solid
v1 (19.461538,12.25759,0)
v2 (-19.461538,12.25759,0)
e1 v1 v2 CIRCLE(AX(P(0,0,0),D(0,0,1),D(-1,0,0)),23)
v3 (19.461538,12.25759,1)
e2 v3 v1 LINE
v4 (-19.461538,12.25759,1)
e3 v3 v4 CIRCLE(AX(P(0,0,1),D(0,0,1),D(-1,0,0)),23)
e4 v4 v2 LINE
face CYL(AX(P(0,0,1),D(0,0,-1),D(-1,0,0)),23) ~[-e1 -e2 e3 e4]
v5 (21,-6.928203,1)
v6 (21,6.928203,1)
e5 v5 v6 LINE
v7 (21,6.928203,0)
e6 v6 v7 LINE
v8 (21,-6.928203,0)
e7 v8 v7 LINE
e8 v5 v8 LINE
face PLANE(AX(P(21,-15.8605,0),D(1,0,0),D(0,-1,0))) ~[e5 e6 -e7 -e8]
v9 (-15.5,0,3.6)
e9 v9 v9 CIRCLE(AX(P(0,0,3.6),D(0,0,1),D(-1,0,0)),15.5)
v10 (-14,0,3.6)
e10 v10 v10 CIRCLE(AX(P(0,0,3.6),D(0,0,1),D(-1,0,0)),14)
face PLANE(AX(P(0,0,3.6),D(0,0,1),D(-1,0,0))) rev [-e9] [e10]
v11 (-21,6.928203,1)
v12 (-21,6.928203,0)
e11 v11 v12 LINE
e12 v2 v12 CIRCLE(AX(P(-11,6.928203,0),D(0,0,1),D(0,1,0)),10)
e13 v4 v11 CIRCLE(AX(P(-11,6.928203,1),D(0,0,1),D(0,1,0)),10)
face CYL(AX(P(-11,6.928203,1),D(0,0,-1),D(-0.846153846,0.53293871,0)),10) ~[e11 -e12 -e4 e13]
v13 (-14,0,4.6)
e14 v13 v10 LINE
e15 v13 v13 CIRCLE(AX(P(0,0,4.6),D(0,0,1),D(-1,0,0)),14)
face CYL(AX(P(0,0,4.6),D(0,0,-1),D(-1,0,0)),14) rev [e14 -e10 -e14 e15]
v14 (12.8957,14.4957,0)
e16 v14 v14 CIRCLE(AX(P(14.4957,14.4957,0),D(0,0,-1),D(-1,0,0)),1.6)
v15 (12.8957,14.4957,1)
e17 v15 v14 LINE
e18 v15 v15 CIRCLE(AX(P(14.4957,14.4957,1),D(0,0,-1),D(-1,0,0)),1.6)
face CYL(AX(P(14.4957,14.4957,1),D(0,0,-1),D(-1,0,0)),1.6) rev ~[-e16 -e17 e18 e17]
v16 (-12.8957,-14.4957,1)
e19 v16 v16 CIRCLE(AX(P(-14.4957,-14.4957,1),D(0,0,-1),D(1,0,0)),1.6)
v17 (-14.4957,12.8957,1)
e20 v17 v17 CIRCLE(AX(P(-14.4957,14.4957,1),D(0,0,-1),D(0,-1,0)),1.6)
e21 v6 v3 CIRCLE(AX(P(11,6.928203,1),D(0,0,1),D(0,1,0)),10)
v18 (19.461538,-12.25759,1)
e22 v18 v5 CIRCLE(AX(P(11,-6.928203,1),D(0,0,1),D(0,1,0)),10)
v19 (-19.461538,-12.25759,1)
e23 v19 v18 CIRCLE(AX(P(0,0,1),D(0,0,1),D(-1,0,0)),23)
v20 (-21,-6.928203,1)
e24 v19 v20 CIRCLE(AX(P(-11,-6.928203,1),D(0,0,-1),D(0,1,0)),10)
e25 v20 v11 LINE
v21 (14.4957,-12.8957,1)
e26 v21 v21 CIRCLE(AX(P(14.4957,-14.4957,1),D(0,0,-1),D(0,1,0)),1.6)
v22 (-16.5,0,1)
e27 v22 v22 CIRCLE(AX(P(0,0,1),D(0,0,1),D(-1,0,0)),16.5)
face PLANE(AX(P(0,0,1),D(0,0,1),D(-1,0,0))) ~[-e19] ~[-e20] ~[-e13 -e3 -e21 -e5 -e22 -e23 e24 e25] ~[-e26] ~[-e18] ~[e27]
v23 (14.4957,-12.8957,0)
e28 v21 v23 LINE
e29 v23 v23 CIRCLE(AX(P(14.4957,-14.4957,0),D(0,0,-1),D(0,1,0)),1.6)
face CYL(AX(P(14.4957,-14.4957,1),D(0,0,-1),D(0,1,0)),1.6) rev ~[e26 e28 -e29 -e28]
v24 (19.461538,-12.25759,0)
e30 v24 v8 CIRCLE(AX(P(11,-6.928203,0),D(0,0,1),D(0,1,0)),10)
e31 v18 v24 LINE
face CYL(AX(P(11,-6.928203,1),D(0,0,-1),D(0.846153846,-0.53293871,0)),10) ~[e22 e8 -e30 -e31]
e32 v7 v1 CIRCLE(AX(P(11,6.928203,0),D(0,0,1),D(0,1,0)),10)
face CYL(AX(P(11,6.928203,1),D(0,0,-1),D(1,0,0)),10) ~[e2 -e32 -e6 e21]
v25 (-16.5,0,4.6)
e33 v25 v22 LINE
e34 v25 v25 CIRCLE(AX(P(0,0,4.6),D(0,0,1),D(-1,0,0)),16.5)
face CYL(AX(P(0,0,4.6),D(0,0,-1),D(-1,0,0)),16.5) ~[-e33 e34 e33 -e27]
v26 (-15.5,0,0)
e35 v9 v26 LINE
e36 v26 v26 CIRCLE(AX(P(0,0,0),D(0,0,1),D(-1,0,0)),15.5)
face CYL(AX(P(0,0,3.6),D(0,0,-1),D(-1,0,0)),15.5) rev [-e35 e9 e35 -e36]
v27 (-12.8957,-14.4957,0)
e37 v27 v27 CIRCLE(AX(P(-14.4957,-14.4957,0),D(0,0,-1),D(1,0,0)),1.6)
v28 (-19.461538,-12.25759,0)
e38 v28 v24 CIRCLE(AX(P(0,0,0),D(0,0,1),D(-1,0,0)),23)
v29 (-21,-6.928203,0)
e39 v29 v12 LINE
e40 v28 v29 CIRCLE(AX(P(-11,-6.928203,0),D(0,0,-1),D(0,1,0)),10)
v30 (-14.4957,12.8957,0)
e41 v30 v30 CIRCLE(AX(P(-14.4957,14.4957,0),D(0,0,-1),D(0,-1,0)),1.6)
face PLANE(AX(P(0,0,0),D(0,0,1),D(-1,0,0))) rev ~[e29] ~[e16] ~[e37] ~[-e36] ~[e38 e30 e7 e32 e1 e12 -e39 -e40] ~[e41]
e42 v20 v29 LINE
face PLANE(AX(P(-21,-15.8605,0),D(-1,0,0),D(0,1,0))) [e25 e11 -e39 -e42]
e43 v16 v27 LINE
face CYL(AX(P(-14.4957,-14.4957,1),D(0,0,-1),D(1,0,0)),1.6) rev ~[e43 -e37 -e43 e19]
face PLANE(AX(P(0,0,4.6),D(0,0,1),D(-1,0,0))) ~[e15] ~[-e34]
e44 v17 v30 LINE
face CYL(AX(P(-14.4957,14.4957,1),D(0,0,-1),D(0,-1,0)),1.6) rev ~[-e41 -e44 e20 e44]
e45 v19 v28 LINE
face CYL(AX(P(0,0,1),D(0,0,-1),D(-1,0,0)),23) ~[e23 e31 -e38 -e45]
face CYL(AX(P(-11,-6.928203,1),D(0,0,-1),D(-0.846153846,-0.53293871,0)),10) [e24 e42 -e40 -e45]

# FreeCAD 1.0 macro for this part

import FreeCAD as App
import Part
import Sketcher

V = App.Vector
Q = App.Units.Quantity


def edges_at(feature, points):
    """Names of the edges that pass closest to the given points."""
    edges = feature.Shape.Edges
    near = lambda p: min(range(len(edges)), key=lambda i: edges[i].distToShape(Part.Vertex(*p))[0])
    return sorted({f"Edge{near(p) + 1}" for p in points})

doc = App.newDocument("Part")
params = doc.addObject("Spreadsheet::Sheet", "Params")
for row, (alias, value) in enumerate([
    ("sketch1_height", "1 mm"),
    ("sketch1_height2", "3.6 mm"),
    ("sketch1_width", "2.5 mm"),
    ("sketch1_width2", "7.5 mm"),
    ("revolution_angle", "360 deg"),
    ("sketch2_diameter", "3.2 mm"),
    ("hole_diameter", "3.2 mm"),
    ("fillet_radius", "10 mm"),
], start=1):
    params.set(f"A{row}", alias)
    params.set(f"B{row}", "=" + value)
    params.setAlias(f"B{row}", alias)

body = doc.addObject("PartDesign::Body", "Body")

sketch1 = body.newObject("Sketcher::SketchObject", "Sketch")
sketch1.AttachmentSupport = (doc.getObject("XZ_Plane"), [""])
sketch1.MapMode = "FlatFace"
sketch1.addGeometry([
    Part.LineSegment(V(-16.5, 4.6, 0), V(-14, 4.6, 0)),
    Part.LineSegment(V(-14, 4.6, 0), V(-14, 3.6, 0)),
    Part.LineSegment(V(-14, 3.6, 0), V(-15.5, 3.6, 0)),
    Part.LineSegment(V(-15.5, 3.6, 0), V(-15.5, 0, 0)),
    Part.LineSegment(V(-15.5, 0, 0), V(-23, 0, 0)),
    Part.LineSegment(V(-23, 0, 0), V(-23, 1, 0)),
    Part.LineSegment(V(-23, 1, 0), V(-16.5, 1, 0)),
    Part.LineSegment(V(-16.5, 1, 0), V(-16.5, 4.6, 0)),
], False)
sketch1.addConstraint([
    Sketcher.Constraint("Coincident", 0, 2, 1, 1),
    Sketcher.Constraint("Coincident", 1, 2, 2, 1),
    Sketcher.Constraint("Coincident", 2, 2, 3, 1),
    Sketcher.Constraint("Coincident", 3, 2, 4, 1),
    Sketcher.Constraint("Coincident", 4, 2, 5, 1),
    Sketcher.Constraint("Coincident", 5, 2, 6, 1),
    Sketcher.Constraint("Coincident", 6, 2, 7, 1),
    Sketcher.Constraint("Coincident", 7, 2, 0, 1),
    Sketcher.Constraint("Horizontal", 0),
    Sketcher.Constraint("Vertical", 1),
    Sketcher.Constraint("Horizontal", 2),
    Sketcher.Constraint("Vertical", 3),
    Sketcher.Constraint("Horizontal", 4),
    Sketcher.Constraint("Vertical", 5),
    Sketcher.Constraint("Horizontal", 6),
    Sketcher.Constraint("Vertical", 7),
    Sketcher.Constraint("PointOnObject", 3, 2, -1),
    Sketcher.Constraint("Equal", 1, 5),
    Sketcher.Constraint("DistanceY", 1, 2, 1, 1, Q("1 mm")),
    Sketcher.Constraint("DistanceY", 3, 2, 3, 1, Q("3.6 mm")),
    Sketcher.Constraint("DistanceX", 6, 2, 3, 2, Q("1 mm")),
    Sketcher.Constraint("DistanceX", 0, 1, 0, 2, Q("2.5 mm")),
    Sketcher.Constraint("DistanceX", 4, 2, 4, 1, Q("7.5 mm")),
    Sketcher.Constraint("DistanceX", 0, 2, -1, 1, Q("14 mm")),
])
sketch1.setExpression("Constraints[18]", "Params.sketch1_height")
sketch1.setExpression("Constraints[19]", "Params.sketch1_height2")
sketch1.setExpression("Constraints[21]", "Params.sketch1_width")
sketch1.setExpression("Constraints[22]", "Params.sketch1_width2")
revolution = body.newObject("PartDesign::Revolution", "Revolution")
revolution.Profile = sketch1
revolution.ReferenceAxis = (sketch1, ["V_Axis"])
revolution.setExpression("Angle", "Params.revolution_angle")

sketch2 = body.newObject("Sketcher::SketchObject", "Sketch001")
sketch2.AttachmentSupport = (doc.getObject("XY_Plane"), [""])
sketch2.MapMode = "FlatFace"
sketch2.AttachmentOffset = App.Placement(V(0, 0, 1), App.Rotation())
sketch2.addGeometry(Part.Circle(V(-14.5, 14.5, 0), V(0, 0, 1), 1.6), False)
sketch2.addConstraint([
    Sketcher.Constraint("Diameter", 0, Q("3.2 mm")),
    Sketcher.Constraint("DistanceX", 0, 3, -1, 1, Q("14.4957 mm")),
    Sketcher.Constraint("DistanceY", -1, 1, 0, 3, Q("14.4957 mm")),
])
sketch2.setExpression("Constraints[0]", "Params.sketch2_diameter")
doc.recompute()
hole = body.newObject("PartDesign::Hole", "Hole")
hole.Profile = sketch2
hole.ThreadType = "None"
hole.setExpression("Diameter", "Params.hole_diameter")
hole.DepthType = "ThroughAll"
doc.recompute()

polarpattern = body.newObject("PartDesign::PolarPattern", "PolarPattern")
polarpattern.Originals = [hole]
polarpattern.Axis = (doc.getObject("Z_Axis"), [""])
polarpattern.Angle = 360
polarpattern.Occurrences = 4
body.Tip = polarpattern

sketch3 = body.newObject("Sketcher::SketchObject", "Sketch002")
sketch3.AttachmentSupport = (doc.getObject("XY_Plane"), [""])
sketch3.MapMode = "FlatFace"
sketch3.addGeometry([
    Part.LineSegment(V(-28, 16, 0), V(-28, -16, 0)),
    Part.LineSegment(V(-28, -16, 0), V(-21, -16, 0)),
    Part.LineSegment(V(-21, -16, 0), V(-21, 16, 0)),
    Part.LineSegment(V(-21, 16, 0), V(-28, 16, 0)),
], False)
sketch3.addConstraint([
    Sketcher.Constraint("Coincident", 0, 2, 1, 1),
    Sketcher.Constraint("Coincident", 1, 2, 2, 1),
    Sketcher.Constraint("Coincident", 2, 2, 3, 1),
    Sketcher.Constraint("Coincident", 3, 2, 0, 1),
    Sketcher.Constraint("Vertical", 0),
    Sketcher.Constraint("Horizontal", 1),
    Sketcher.Constraint("Vertical", 2),
    Sketcher.Constraint("Horizontal", 3),
    Sketcher.Constraint("DistanceX", 1, 2, -1, 1, Q("21 mm")),
    Sketcher.Constraint("DistanceY", 0, 2, 0, 1, Q("31.721 mm")),
    Sketcher.Constraint("DistanceX", 1, 1, 1, 2, Q("7.4447 mm")),
    Sketcher.Constraint("DistanceY", 0, 2, -1, 1, Q("15.8605 mm")),
])
pocket1 = body.newObject("PartDesign::Pocket", "Pocket")
pocket1.Profile = sketch3
pocket1.Type = "ThroughAll"
pocket1.Reversed = True
doc.recompute()

fillet = body.newObject("PartDesign::Fillet", "Fillet")
fillet.Base = (pocket1, edges_at(pocket1, [(-21, -9.381, 0.5), (-21, 9.381, 0.5)]))
fillet.setExpression("Radius", "Params.fillet_radius")
doc.recompute()

mirrored = body.newObject("PartDesign::Mirrored", "Mirrored")
mirrored.Originals = [pocket1, fillet]
mirrored.MirrorPlane = (doc.getObject("YZ_Plane"), [""])
body.Tip = mirrored

doc.recompute()
